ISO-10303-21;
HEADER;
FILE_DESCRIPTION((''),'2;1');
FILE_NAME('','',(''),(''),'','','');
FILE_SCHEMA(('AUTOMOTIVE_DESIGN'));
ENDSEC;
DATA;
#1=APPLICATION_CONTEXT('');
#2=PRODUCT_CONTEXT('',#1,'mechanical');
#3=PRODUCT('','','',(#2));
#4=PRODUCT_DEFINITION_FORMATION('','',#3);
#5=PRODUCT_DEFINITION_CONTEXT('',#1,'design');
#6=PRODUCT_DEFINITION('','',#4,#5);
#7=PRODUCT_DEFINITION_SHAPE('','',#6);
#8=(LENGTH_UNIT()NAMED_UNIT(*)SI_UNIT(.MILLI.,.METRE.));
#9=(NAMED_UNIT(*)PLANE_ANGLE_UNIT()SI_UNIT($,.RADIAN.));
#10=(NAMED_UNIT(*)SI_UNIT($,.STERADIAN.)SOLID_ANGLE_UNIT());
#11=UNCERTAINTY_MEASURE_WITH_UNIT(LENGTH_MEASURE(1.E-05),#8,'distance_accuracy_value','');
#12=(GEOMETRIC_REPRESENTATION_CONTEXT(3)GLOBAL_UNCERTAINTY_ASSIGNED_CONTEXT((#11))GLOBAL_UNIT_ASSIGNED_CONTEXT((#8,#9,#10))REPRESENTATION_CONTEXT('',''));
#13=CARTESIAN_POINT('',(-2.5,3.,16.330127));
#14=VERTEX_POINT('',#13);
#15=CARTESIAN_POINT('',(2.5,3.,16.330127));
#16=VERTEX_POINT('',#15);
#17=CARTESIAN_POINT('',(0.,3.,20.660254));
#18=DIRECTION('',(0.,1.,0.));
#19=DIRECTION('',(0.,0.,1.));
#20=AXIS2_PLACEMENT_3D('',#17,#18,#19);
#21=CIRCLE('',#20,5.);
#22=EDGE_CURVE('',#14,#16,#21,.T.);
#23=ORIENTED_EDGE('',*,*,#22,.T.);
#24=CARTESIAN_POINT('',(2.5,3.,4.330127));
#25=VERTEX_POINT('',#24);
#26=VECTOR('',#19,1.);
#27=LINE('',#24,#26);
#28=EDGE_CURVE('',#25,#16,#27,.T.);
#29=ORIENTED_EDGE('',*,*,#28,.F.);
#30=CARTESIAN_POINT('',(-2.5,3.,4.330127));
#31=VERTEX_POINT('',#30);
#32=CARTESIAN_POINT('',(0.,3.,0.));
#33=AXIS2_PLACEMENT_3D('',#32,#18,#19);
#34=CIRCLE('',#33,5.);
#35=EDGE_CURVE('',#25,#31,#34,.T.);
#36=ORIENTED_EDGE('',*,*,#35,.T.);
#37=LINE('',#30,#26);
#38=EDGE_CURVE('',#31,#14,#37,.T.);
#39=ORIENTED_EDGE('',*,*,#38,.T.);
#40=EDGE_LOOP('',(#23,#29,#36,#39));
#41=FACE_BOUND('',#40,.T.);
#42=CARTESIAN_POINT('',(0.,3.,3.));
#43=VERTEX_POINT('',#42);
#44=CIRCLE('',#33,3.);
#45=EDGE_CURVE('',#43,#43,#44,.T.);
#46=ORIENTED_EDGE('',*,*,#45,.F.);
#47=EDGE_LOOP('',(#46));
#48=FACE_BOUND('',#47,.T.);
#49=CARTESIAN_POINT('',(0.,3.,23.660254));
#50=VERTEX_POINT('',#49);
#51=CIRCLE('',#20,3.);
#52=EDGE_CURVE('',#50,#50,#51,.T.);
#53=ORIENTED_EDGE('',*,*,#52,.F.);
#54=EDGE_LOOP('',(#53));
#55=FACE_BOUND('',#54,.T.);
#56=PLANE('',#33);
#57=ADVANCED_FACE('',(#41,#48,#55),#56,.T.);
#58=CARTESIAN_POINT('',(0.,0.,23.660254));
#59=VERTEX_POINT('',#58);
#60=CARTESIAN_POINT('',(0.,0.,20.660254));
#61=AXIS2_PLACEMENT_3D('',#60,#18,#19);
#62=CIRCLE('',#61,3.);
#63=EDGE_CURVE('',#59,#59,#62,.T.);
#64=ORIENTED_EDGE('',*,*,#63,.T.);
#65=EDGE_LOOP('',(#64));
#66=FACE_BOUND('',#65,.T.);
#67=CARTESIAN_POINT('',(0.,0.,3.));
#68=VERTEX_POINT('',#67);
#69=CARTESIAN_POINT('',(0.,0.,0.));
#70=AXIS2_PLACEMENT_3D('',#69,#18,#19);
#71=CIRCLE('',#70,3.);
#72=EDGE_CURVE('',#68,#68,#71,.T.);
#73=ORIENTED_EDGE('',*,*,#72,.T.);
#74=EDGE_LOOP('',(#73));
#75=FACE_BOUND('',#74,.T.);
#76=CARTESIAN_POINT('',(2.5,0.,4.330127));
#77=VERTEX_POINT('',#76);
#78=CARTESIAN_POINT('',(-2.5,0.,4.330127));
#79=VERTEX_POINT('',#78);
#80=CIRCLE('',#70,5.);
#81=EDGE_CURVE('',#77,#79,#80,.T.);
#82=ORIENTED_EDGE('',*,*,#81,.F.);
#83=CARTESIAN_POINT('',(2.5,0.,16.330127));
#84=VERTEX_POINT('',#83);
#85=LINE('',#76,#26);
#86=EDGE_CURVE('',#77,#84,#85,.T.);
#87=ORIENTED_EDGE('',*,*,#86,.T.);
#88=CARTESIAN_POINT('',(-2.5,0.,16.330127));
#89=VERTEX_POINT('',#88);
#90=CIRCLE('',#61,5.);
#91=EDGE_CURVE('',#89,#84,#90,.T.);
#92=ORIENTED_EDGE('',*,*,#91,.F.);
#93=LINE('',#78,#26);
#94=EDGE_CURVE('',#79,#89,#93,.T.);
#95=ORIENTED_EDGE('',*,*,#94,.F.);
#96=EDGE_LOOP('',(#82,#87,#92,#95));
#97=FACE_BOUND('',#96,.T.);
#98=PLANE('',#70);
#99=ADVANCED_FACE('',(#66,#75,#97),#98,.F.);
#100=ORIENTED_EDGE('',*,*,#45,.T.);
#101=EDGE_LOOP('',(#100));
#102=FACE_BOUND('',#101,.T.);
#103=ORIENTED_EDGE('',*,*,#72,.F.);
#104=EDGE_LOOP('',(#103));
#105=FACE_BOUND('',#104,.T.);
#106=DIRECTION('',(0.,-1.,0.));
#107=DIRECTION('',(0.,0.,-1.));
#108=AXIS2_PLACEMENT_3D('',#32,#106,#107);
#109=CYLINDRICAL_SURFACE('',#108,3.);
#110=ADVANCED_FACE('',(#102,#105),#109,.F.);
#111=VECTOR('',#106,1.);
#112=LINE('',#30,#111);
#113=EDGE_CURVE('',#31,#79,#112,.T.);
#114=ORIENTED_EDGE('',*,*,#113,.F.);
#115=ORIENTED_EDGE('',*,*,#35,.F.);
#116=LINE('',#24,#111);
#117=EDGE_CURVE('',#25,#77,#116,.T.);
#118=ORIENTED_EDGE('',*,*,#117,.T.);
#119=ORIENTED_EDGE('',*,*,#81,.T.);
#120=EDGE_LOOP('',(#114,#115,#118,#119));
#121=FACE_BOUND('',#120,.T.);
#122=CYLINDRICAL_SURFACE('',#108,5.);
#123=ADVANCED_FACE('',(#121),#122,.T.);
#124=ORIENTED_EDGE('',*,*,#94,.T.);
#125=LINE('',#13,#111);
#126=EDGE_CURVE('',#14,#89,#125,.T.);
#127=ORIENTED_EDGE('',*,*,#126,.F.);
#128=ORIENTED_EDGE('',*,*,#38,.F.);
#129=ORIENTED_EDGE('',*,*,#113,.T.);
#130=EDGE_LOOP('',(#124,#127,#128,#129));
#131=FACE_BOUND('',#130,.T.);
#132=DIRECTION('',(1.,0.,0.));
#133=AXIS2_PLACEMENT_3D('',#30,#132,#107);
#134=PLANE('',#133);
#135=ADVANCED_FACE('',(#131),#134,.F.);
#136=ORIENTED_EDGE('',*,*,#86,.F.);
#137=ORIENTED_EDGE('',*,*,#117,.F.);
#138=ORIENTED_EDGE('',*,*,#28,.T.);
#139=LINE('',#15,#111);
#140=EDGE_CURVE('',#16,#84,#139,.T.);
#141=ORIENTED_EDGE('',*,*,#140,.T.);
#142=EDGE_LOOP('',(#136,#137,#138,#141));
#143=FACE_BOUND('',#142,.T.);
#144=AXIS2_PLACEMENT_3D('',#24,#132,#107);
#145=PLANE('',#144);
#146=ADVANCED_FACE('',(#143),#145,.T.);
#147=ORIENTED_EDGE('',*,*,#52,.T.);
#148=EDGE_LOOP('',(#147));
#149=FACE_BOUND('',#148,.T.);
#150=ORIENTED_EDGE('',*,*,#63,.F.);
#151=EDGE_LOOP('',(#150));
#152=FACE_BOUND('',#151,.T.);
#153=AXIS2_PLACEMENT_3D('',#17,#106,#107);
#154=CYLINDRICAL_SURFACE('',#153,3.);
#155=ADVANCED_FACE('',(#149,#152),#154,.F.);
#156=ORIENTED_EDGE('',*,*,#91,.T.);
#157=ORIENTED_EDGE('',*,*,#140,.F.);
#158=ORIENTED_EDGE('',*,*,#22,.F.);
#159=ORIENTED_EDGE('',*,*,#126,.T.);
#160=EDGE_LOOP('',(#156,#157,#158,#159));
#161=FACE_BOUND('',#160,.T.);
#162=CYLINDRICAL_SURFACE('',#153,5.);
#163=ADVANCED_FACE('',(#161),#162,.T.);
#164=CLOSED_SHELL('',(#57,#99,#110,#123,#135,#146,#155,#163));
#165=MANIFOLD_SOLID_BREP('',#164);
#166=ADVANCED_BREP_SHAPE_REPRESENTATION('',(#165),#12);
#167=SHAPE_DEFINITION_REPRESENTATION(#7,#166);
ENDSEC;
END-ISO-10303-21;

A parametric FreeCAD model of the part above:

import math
import FreeCAD as App
import Part
import Sketcher
from FreeCAD import Vector
Q = App.Units.Quantity

doc = App.newDocument("Part")
body = doc.addObject("PartDesign::Body", "Body")

# Sketch on XZ plane
sketch1 = doc.addObject("Sketcher::SketchObject", "Sketch")
body.addObject(sketch1)
sketch1.AttachmentSupport = (doc.XZ_Plane, [""])
sketch1.MapMode = "FlatFace"
sketch1.addGeometry([
    Part.ArcOfCircle(Part.Circle(Vector(0, 0, 0), Vector(0, 0, 1), 5), math.radians(120), math.radians(420)),  # 0
    Part.LineSegment(Vector(-2.5, 4.3, 0), Vector(-2.5, 16.3, 0)),  # 1
    Part.ArcOfCircle(Part.Circle(Vector(0, 20.7, 0), Vector(0, 0, 1), 5), math.radians(-60), math.radians(240)),  # 2
    Part.LineSegment(Vector(2.5, 16.3, 0), Vector(2.5, 4.3, 0)),  # 3
    Part.Circle(Vector(0, 0, 0), Vector(0, 0, 1), 3),  # 4
    Part.Circle(Vector(0, 20.7, 0), Vector(0, 0, 1), 3),  # 5
], False)
sketch1.addConstraint([
    Sketcher.Constraint("Coincident", 0, 1, 1, 1),
    Sketcher.Constraint("Coincident", 1, 2, 2, 2),
    Sketcher.Constraint("Coincident", 2, 1, 3, 1),
    Sketcher.Constraint("Coincident", 3, 2, 0, 2),
    Sketcher.Constraint("Vertical", 1),
    Sketcher.Constraint("Vertical", 3),
    Sketcher.Constraint("Coincident", 0, 3, -1, 1),
    Sketcher.Constraint("Coincident", 4, 3, -1, 1),
    Sketcher.Constraint("Coincident", 5, 3, 2, 3),
    Sketcher.Constraint("Equal", 0, 2),
    Sketcher.Constraint("Equal", 4, 5),
    Sketcher.Constraint("Symmetric", 1, 2, 2, 1, -2),
    Sketcher.Constraint("Diameter", 4, Q("6 mm")),
    Sketcher.Constraint("Radius", 0, Q("5 mm")),
    Sketcher.Constraint("DistanceY", 1, 1, 1, 2, Q("12 mm")),
    Sketcher.Constraint("DistanceX", 1, 2, 2, 1, Q("5 mm")),
])
pad1 = doc.addObject("PartDesign::Pad", "Pad")
body.addObject(pad1)
pad1.Profile = sketch1
pad1.Length = 3
pad1.Reversed = True

doc.recompute()
